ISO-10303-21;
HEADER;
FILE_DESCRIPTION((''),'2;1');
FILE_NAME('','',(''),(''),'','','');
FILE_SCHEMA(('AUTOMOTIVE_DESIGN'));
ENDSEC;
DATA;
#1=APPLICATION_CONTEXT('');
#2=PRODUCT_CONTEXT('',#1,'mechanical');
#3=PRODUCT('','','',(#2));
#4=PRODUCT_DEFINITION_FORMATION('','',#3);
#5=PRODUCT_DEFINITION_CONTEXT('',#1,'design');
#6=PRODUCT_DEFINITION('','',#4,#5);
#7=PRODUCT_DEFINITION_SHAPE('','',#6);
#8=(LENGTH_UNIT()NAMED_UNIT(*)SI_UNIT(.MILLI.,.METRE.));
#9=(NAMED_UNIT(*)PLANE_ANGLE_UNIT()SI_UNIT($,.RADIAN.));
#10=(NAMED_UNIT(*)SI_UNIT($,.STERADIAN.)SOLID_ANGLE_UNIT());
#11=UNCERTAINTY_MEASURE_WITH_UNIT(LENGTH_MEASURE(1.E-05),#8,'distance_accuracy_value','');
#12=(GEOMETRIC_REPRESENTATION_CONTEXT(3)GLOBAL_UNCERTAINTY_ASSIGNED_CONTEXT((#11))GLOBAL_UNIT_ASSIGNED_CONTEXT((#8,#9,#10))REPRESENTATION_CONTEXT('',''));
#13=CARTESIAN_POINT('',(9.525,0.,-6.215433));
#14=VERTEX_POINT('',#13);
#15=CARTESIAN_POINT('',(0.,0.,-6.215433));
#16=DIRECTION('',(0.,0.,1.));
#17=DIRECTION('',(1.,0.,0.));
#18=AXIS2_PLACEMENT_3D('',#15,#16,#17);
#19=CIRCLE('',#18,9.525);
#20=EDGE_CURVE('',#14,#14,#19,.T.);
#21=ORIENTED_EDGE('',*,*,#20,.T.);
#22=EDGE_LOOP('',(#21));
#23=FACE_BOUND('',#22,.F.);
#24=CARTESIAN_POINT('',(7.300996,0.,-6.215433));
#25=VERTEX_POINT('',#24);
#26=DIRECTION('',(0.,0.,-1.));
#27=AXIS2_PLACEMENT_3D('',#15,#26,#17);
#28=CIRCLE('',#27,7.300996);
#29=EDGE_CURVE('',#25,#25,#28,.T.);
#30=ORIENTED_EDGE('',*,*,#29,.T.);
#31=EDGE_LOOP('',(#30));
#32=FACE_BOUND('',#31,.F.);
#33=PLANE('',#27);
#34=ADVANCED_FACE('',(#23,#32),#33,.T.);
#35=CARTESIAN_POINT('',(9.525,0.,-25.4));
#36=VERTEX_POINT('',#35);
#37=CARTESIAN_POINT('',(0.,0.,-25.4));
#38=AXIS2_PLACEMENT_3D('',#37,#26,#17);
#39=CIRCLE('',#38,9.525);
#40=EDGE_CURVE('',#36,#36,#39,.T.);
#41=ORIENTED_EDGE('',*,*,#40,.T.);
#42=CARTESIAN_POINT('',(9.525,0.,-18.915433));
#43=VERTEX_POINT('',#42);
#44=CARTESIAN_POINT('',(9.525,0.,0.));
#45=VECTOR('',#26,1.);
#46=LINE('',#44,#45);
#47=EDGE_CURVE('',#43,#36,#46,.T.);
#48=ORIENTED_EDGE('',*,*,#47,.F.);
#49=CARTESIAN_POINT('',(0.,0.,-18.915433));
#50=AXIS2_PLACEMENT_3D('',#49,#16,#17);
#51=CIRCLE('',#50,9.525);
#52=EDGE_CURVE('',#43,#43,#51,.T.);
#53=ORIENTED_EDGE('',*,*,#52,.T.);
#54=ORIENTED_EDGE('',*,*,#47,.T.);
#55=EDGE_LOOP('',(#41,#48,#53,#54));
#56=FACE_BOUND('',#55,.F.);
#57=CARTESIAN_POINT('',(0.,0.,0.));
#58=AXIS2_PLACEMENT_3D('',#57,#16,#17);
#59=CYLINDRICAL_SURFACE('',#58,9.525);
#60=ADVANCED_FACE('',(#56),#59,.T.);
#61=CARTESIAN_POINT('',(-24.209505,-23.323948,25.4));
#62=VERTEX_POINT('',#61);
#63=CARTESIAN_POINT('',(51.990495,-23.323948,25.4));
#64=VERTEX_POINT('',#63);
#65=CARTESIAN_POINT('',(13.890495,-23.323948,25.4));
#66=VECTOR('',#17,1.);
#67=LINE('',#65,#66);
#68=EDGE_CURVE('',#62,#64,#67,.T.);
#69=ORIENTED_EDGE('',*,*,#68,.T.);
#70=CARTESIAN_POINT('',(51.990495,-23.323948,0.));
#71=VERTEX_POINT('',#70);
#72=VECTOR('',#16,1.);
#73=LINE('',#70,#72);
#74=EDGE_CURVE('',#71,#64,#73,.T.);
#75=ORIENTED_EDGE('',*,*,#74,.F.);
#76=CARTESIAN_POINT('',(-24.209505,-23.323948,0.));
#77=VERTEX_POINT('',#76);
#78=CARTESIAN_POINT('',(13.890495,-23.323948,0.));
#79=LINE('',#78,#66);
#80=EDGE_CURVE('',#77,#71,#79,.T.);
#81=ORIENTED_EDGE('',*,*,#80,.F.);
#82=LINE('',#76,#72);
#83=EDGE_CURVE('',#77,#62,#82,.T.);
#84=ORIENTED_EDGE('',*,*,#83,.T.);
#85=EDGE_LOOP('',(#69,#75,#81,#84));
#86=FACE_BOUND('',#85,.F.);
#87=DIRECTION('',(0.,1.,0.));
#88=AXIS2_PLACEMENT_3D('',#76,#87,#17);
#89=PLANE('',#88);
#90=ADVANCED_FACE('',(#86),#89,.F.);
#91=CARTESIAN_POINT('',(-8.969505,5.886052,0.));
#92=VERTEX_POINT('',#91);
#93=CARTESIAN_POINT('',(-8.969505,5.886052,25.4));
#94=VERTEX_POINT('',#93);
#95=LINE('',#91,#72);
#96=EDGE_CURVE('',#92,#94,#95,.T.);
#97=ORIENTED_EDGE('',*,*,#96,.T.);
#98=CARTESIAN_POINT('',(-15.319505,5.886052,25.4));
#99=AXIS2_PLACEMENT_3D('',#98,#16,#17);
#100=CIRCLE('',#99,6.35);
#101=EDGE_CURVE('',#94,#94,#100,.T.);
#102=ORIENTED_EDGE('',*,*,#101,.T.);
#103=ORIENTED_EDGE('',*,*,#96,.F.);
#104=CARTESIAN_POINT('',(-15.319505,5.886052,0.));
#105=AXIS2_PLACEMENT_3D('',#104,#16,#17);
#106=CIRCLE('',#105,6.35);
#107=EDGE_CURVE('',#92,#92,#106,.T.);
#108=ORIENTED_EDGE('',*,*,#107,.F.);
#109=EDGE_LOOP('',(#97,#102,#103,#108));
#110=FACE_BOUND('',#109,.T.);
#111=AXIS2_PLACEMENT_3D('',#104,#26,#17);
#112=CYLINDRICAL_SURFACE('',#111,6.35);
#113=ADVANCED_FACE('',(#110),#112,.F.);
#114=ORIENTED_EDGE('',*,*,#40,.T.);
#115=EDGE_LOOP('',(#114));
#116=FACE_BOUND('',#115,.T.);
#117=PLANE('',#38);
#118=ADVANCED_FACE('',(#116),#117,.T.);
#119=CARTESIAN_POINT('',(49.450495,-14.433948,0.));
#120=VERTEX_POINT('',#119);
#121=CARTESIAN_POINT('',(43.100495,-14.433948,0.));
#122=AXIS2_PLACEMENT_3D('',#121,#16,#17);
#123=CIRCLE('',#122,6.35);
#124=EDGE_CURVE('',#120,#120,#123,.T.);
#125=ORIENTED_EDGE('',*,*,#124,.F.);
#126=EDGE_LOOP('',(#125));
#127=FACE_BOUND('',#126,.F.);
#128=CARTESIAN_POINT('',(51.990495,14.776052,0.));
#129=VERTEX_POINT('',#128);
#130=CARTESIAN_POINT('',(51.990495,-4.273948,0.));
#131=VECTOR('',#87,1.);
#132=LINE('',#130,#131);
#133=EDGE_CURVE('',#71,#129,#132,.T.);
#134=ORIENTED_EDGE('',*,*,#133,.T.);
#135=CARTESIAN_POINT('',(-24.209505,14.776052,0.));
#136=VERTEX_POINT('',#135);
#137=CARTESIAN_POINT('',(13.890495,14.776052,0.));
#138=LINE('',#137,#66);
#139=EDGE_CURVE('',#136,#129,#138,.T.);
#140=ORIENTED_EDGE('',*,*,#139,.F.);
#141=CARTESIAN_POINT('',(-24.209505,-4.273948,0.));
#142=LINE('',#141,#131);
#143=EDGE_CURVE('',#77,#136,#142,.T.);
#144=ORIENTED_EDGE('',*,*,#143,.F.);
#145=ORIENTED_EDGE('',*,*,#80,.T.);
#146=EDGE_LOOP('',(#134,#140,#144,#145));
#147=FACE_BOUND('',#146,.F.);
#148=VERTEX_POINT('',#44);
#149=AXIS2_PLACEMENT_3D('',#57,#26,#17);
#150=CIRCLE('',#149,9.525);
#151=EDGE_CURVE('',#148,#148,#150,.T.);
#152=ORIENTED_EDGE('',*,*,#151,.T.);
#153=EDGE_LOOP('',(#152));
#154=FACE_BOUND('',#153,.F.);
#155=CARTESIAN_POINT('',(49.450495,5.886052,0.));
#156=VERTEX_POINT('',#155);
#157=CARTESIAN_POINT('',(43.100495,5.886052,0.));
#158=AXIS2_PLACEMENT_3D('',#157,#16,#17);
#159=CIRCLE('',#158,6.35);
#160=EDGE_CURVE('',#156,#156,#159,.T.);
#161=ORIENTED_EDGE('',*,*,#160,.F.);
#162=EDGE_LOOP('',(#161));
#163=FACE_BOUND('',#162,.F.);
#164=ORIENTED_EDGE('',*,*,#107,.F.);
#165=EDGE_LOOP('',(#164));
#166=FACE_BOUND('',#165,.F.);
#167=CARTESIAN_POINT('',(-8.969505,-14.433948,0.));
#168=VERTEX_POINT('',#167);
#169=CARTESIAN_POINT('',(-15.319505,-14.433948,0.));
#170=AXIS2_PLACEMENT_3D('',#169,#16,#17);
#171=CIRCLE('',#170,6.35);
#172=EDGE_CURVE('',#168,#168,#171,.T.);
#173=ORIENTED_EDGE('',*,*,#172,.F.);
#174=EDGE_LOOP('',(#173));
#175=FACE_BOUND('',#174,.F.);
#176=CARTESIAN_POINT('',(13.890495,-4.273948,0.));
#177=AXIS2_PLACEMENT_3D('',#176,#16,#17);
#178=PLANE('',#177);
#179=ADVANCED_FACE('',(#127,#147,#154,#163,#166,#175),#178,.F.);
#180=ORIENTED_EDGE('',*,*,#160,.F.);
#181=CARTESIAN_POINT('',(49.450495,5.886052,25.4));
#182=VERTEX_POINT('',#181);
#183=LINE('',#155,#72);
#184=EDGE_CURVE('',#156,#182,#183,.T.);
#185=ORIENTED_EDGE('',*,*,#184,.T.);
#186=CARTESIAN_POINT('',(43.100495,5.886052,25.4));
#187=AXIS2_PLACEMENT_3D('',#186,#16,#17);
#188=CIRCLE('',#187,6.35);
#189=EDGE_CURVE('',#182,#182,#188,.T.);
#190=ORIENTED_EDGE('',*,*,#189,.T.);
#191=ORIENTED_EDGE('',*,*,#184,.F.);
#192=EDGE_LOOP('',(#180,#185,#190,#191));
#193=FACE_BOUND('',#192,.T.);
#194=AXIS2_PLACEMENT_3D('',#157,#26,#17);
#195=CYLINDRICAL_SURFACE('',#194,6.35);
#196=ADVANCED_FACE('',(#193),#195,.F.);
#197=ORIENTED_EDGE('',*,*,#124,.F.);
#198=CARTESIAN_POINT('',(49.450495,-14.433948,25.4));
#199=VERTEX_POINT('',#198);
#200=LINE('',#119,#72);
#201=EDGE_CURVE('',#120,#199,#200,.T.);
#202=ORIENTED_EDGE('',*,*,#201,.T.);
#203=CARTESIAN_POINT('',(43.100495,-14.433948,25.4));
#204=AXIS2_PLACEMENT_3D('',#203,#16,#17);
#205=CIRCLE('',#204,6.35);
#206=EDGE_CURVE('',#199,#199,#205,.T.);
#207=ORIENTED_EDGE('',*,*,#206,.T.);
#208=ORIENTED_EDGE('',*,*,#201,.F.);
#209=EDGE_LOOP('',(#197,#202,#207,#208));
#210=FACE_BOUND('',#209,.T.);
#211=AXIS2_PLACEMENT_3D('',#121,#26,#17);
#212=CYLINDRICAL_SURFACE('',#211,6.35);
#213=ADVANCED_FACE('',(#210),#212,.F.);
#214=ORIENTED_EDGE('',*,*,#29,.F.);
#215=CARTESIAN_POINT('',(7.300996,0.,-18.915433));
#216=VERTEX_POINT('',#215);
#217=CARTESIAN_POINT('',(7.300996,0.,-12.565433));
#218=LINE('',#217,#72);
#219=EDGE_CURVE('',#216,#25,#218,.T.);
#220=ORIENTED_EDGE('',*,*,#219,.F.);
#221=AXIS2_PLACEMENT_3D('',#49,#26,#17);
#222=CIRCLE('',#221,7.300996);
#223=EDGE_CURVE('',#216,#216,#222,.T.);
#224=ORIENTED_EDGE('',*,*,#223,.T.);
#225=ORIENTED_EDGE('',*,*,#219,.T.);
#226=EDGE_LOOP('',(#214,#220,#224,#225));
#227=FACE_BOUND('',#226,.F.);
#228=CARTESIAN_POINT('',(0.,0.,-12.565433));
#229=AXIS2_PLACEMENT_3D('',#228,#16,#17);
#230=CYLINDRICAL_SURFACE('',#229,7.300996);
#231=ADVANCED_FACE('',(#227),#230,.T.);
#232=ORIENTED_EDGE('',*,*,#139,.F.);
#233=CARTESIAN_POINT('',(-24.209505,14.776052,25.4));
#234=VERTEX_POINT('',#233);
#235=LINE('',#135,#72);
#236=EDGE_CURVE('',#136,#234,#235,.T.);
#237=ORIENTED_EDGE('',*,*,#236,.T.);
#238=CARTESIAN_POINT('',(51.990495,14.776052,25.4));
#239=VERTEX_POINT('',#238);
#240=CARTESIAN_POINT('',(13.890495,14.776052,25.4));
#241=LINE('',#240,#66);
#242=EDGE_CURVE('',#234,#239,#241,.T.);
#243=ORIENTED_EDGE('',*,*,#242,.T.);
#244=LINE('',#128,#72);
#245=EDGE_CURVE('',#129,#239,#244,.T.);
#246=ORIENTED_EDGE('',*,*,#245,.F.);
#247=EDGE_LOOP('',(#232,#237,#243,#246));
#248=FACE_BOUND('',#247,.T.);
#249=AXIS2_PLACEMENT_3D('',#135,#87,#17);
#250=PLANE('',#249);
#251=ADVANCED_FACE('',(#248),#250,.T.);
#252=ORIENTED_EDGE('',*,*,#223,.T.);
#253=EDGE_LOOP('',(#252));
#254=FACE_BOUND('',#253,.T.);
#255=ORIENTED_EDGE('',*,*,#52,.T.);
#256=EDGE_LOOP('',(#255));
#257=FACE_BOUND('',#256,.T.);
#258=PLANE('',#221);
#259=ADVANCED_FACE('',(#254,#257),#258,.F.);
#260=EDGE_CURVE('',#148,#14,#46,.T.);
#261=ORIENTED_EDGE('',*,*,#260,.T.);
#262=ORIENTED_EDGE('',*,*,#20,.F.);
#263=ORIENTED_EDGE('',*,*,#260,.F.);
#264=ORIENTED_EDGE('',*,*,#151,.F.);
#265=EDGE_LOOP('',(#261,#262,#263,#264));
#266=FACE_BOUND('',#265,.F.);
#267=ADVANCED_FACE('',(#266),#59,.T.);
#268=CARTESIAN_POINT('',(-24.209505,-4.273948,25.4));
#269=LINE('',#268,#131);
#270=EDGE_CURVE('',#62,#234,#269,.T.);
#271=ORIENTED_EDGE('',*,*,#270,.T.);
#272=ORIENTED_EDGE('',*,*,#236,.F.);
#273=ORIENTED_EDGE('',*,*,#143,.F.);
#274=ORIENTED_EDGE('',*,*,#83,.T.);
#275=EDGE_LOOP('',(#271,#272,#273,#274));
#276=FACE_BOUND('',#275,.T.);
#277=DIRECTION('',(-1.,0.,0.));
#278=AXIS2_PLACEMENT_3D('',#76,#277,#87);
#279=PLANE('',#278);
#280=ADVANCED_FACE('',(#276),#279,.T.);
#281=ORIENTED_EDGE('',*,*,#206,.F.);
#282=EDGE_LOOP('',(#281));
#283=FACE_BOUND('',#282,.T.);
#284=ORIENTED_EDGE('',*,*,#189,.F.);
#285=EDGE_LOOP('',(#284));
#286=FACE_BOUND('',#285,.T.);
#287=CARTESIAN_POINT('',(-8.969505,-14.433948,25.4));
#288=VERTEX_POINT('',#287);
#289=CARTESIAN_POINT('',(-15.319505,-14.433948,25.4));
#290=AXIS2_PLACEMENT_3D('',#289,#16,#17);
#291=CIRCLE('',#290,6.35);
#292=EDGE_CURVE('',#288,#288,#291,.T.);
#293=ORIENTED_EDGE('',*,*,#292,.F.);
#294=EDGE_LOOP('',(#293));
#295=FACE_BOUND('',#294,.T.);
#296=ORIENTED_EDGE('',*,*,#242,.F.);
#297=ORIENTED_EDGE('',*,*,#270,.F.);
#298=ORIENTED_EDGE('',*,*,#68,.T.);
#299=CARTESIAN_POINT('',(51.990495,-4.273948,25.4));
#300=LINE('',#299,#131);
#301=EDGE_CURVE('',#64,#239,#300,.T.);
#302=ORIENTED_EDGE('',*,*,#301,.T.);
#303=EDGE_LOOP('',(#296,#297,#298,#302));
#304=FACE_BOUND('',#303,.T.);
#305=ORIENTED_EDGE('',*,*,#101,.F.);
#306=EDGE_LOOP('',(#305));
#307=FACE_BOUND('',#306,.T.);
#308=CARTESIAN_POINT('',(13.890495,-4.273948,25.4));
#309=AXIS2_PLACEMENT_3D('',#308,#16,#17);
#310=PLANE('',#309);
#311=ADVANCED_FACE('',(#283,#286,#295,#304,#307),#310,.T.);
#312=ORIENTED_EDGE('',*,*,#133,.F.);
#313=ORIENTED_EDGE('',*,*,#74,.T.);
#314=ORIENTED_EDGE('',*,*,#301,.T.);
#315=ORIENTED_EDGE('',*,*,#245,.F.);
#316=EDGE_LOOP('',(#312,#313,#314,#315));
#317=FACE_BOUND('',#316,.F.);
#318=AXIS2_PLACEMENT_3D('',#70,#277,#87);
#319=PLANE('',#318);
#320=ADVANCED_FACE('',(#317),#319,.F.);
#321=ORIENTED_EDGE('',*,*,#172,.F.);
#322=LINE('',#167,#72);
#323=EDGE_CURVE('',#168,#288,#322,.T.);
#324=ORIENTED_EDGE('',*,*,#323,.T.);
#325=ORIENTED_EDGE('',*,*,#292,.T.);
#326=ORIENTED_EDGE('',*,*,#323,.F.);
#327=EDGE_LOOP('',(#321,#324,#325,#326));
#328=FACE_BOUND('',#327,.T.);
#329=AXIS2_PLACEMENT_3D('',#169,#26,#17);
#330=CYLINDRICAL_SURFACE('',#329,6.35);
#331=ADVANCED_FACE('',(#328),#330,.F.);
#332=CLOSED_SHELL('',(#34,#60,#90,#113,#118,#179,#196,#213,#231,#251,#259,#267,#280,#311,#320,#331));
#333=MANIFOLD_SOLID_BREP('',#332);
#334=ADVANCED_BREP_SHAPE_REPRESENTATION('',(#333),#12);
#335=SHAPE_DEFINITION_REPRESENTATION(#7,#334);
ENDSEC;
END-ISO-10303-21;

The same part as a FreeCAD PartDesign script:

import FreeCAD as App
import Part
import Sketcher
Q = App.Units.Quantity


def add_polygon(sketch, points):
    """Adds a closed chain of lines whose ends are joined by coincident constraints."""
    first, n = sketch.GeometryCount, len(points)
    for a, b in zip(points, points[1:] + points[:1]):
        sketch.addGeometry(Part.LineSegment(App.Vector(*a, 0), App.Vector(*b, 0)), False)
    for i in range(n):
        sketch.addConstraint(Sketcher.Constraint("Coincident", first + i, 2, first + (i + 1) % n, 1))

doc = App.newDocument("Part")
body = doc.addObject("PartDesign::Body", "Body")

# Sketch on XY plane
sketch1 = doc.addObject("Sketcher::SketchObject", "Sketch")
body.addObject(sketch1)
sketch1.AttachmentSupport = (doc.XY_Plane, [""])
sketch1.MapMode = "FlatFace"
add_polygon(sketch1, [(-24.209505, 14.776052), (-24.209505, -23.323948), (51.990495, -23.323948), (51.990495, 14.776052)])  # lines 0-3
sketch1.addConstraint([
    Sketcher.Constraint("Vertical", 0),
    Sketcher.Constraint("Horizontal", 1),
    Sketcher.Constraint("Vertical", 2),
    Sketcher.Constraint("Horizontal", 3),
    Sketcher.Constraint("DistanceX", 1, 1, 1, 2, Q("3 in")),
    Sketcher.Constraint("DistanceY", 0, 2, 0, 1, Q("1.5 in")),
    Sketcher.Constraint("DistanceY", 0, 2, -1, 1, 23.323948),
    Sketcher.Constraint("DistanceX", 0, 2, -1, 1, 24.209505),
])
pad1 = doc.addObject("PartDesign::Pad", "Pad")
body.addObject(pad1)
pad1.Profile = sketch1
pad1.Length = Q("1 in")

# Sketch on XY plane
sketch2 = doc.addObject("Sketcher::SketchObject", "Sketch001")
body.addObject(sketch2)
sketch2.AttachmentSupport = (doc.XY_Plane, [""])
sketch2.MapMode = "FlatFace"
sketch2.addGeometry([
    Part.Circle(App.Vector(-15.319505, 5.886052, 0), App.Vector(0, 0, 1), 6.35),
    Part.Circle(App.Vector(-15.319505, -14.433948, 0), App.Vector(0, 0, 1), 6.35),
    Part.Circle(App.Vector(43.100495, 5.886052, 0), App.Vector(0, 0, 1), 6.35),
    Part.Circle(App.Vector(43.100495, -14.433948, 0), App.Vector(0, 0, 1), 6.35),
], False)
sketch2.addConstraint([
    Sketcher.Constraint("Equal", 0, 1),
    Sketcher.Constraint("Equal", 1, 2),
    Sketcher.Constraint("Equal", 2, 3),
    Sketcher.Constraint("Horizontal", 0, 3, 2, 3),
    Sketcher.Constraint("Horizontal", 1, 3, 3, 3),
    Sketcher.Constraint("Vertical", 0, 3, 1, 3),
    Sketcher.Constraint("Vertical", 2, 3, 3, 3),
    Sketcher.Constraint("Diameter", 0, Q("0.5 in")),
    Sketcher.Constraint("DistanceY", 1, 3, 0, 3, Q("0.8 in")),
    Sketcher.Constraint("DistanceX", 0, 3, 2, 3, Q("2.3 in")),
    Sketcher.Constraint("DistanceX", 0, 3, -1, 1, 15.319505),
    Sketcher.Constraint("DistanceY", -1, 1, 0, 3, 5.886052),
])
pocket1 = doc.addObject("PartDesign::Pocket", "Pocket")
body.addObject(pocket1)
pocket1.Profile = sketch2
pocket1.Length = Q("1 in")
pocket1.Reversed = True

# Sketch on XY plane
sketch3 = doc.addObject("Sketcher::SketchObject", "Sketch002")
body.addObject(sketch3)
sketch3.AttachmentSupport = (doc.XY_Plane, [""])
sketch3.MapMode = "FlatFace"
sketch3.addGeometry(Part.Circle(App.Vector(0, 0, 0), App.Vector(0, 0, 1), 9.525), False)
sketch3.addConstraint([
    Sketcher.Constraint("Coincident", 0, 3, -1, 1),
    Sketcher.Constraint("Diameter", 0, Q("0.75 in")),
])
pad2 = doc.addObject("PartDesign::Pad", "Pad001")
body.addObject(pad2)
pad2.Profile = sketch3
pad2.Length = Q("1 in")
pad2.Reversed = True

# Sketch on XZ plane
sketch4 = doc.addObject("Sketcher::SketchObject", "Sketch003")
body.addObject(sketch4)
sketch4.AttachmentSupport = (doc.XZ_Plane, [""])
sketch4.MapMode = "FlatFace"
add_polygon(sketch4, [(7.300996, -6.215433), (7.300996, -18.915433), (20.000996, -18.915433), (20.000996, -6.215433)])  # lines 0-3
sketch4.addConstraint([
    Sketcher.Constraint("Vertical", 0),
    Sketcher.Constraint("Horizontal", 1),
    Sketcher.Constraint("Vertical", 2),
    Sketcher.Constraint("Horizontal", 3),
    Sketcher.Constraint("Equal", 3, 0),
    Sketcher.Constraint("DistanceX", 1, 1, 1, 2, Q("0.5 in")),
    Sketcher.Constraint("DistanceX", -1, 1, 0, 2, 7.300996),
    Sketcher.Constraint("DistanceY", 0, 2, -1, 1, 18.915433),
])
groove = doc.addObject("PartDesign::Groove", "Groove")
body.addObject(groove)
groove.Profile = sketch4
groove.ReferenceAxis = (sketch4, ["V_Axis"])
groove.Angle = 360

doc.recompute()
